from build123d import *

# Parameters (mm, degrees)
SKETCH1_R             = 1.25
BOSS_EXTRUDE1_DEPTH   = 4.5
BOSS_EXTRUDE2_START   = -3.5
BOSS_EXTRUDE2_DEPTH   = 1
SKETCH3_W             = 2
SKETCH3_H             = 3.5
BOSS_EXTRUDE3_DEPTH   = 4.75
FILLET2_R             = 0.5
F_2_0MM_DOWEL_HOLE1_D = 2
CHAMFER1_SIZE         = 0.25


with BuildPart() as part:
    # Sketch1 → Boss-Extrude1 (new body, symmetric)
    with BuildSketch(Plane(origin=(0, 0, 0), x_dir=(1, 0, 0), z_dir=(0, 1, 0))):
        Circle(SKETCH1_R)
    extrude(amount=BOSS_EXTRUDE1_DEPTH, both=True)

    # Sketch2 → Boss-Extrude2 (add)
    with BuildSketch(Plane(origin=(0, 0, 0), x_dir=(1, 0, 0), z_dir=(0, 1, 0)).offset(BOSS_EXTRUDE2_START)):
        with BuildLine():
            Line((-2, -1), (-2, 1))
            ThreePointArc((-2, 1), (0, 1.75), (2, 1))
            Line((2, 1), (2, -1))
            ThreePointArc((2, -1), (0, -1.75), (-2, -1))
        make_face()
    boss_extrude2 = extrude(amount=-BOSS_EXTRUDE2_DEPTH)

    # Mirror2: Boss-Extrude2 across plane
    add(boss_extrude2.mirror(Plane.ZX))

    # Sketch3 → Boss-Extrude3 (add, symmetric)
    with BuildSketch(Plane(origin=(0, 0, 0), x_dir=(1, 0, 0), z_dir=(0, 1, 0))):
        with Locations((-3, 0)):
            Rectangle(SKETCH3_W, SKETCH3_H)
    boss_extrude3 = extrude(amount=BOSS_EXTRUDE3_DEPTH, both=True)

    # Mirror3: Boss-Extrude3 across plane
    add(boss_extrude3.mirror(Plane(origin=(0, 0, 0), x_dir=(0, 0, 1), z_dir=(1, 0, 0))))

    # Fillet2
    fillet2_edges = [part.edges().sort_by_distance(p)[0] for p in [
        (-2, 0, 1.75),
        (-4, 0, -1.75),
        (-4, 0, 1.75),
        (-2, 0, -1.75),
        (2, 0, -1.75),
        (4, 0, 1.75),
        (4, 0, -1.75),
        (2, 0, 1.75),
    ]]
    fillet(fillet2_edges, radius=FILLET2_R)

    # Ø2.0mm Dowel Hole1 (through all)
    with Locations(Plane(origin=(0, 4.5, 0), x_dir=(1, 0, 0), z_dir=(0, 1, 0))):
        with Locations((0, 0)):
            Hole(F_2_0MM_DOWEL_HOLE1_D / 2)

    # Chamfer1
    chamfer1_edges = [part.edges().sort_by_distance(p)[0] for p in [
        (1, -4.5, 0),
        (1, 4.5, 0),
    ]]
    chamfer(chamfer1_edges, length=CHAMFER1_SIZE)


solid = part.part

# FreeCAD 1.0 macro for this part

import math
import FreeCAD as App
import Part
import Sketcher

V = App.Vector


def edges_at(feature, points):
    """Names of the edges that pass closest to the given points."""
    edges = feature.Shape.Edges
    near = lambda p: min(range(len(edges)), key=lambda i: edges[i].distToShape(Part.Vertex(*p))[0])
    return sorted({f"Edge{near(p) + 1}" for p in points})


def add_polygon(sketch, points):
    """Adds a closed chain of lines whose ends are joined by coincident constraints."""
    first, n = sketch.GeometryCount, len(points)
    for a, b in zip(points, points[1:] + points[:1]):
        sketch.addGeometry(Part.LineSegment(App.Vector(*a, 0), App.Vector(*b, 0)), False)
    for i in range(n):
        sketch.addConstraint(Sketcher.Constraint("Coincident", first + i, 2, first + (i + 1) % n, 1))

doc = App.newDocument("Part")
params = doc.addObject("Spreadsheet::Sheet", "Params")
for row, (alias, value) in enumerate([
    ("sketch1_diameter", "2.5 mm"),
    ("pad1_length", "9 mm"),
    ("sketch2_height", "2 mm"),
    ("pad2_length", "1 mm"),
    ("sketch3_width", "2 mm"),
    ("sketch3_height", "3.5 mm"),
    ("pad3_length", "9.5 mm"),
    ("fillet_radius", "0.5 mm"),
    ("sketch4_diameter", "2 mm"),
    ("hole_diameter", "2 mm"),
    ("chamfer_size", "0.25 mm"),
], start=1):
    params.set(f"A{row}", alias)
    params.set(f"B{row}", "=" + value)
    params.setAlias(f"B{row}", alias)

body = doc.addObject("PartDesign::Body", "Body")

sketch1 = body.newObject("Sketcher::SketchObject", "Sketch")
sketch1.AttachmentSupport = (doc.getObject("XZ_Plane"), [""])
sketch1.MapMode = "FlatFace"
sketch1.addGeometry(Part.Circle(V(0, 0, 0), V(0, 0, 1), 1.25), False)
sketch1.addConstraint([
    Sketcher.Constraint("Coincident", 0, 3, -1, 1),
    Sketcher.Constraint("Diameter", 0, 2.5),
])
sketch1.setExpression("Constraints[1]", "Params.sketch1_diameter")
pad1 = body.newObject("PartDesign::Pad", "Pad")
pad1.Profile = sketch1
pad1.setExpression("Length", "Params.pad1_length")
pad1.Midplane = True

sketch2 = body.newObject("Sketcher::SketchObject", "Sketch001")
sketch2.AttachmentSupport = (doc.getObject("XZ_Plane"), [""])
sketch2.MapMode = "FlatFace"
sketch2.AttachmentOffset = App.Placement(V(0, 0, 3.5), App.Rotation())
sketch2.addGeometry([
    Part.LineSegment(V(-2, -1, 0), V(-2, 1, 0)),
    Part.ArcOfCircle(Part.Circle(V(0, -1.291667, 0), V(0, 0, 1), 3.041667), math.radians(48.88791), math.radians(131.11209)),
    Part.LineSegment(V(2, 1, 0), V(2, -1, 0)),
    Part.ArcOfCircle(Part.Circle(V(0, 1.291667, 0), V(0, 0, 1), 3.041667), math.radians(-131.11209), math.radians(-48.88791)),
], False)
sketch2.addConstraint([
    Sketcher.Constraint("Coincident", 0, 2, 1, 2),
    Sketcher.Constraint("Coincident", 1, 1, 2, 1),
    Sketcher.Constraint("Coincident", 2, 2, 3, 2),
    Sketcher.Constraint("Coincident", 3, 1, 0, 1),
    Sketcher.Constraint("Vertical", 0),
    Sketcher.Constraint("Vertical", 2),
    Sketcher.Constraint("Equal", 1, 3),
    Sketcher.Constraint("Symmetric", 1, 3, 3, 3, -1, 1),
    Sketcher.Constraint("Symmetric", 0, 2, 1, 1, -2),
    Sketcher.Constraint("DistanceY", 0, 1, 0, 2, 2.0),
    Sketcher.Constraint("DistanceX", 0, 2, -1, 1, 2.0),
    Sketcher.Constraint("Radius", 1, 3.041667),
])
sketch2.setExpression("Constraints[9]", "Params.sketch2_height")
pad2 = body.newObject("PartDesign::Pad", "Pad001")
pad2.Profile = sketch2
pad2.setExpression("Length", "Params.pad2_length")
doc.recompute()

mirrored = body.newObject("PartDesign::Mirrored", "Mirrored")
mirrored.Originals = [pad2]
mirrored.MirrorPlane = (doc.getObject("XZ_Plane"), [""])
body.Tip = mirrored

sketch3 = body.newObject("Sketcher::SketchObject", "Sketch002")
sketch3.AttachmentSupport = (doc.getObject("XZ_Plane"), [""])
sketch3.MapMode = "FlatFace"
add_polygon(sketch3, [(-4, -1.75), (-4, 1.75), (-2, 1.75), (-2, -1.75)])
sketch3.addConstraint([
    Sketcher.Constraint("Vertical", 0),
    Sketcher.Constraint("Horizontal", 1),
    Sketcher.Constraint("Vertical", 2),
    Sketcher.Constraint("Horizontal", 3),
    Sketcher.Constraint("DistanceX", 1, 1, 1, 2, 2.0),
    Sketcher.Constraint("DistanceY", 0, 1, 0, 2, 3.5),
    Sketcher.Constraint("DistanceX", 0, 2, -1, 1, 4.0),
    Sketcher.Constraint("DistanceY", -1, 1, 0, 2, 1.75),
])
sketch3.setExpression("Constraints[8]", "Params.sketch3_width")
sketch3.setExpression("Constraints[9]", "Params.sketch3_height")
pad3 = body.newObject("PartDesign::Pad", "Pad002")
pad3.Profile = sketch3
pad3.setExpression("Length", "Params.pad3_length")
pad3.Midplane = True
doc.recompute()

mirrored2 = body.newObject("PartDesign::Mirrored", "Mirrored001")
mirrored2.Originals = [pad3]
mirrored2.MirrorPlane = (doc.getObject("YZ_Plane"), [""])
body.Tip = mirrored2
doc.recompute()

fillet = body.newObject("PartDesign::Fillet", "Fillet")
fillet.Base = (mirrored2, edges_at(mirrored2, [
    (-2, 0, 1.75),
    (-4, 0, -1.75),
    (-4, 0, 1.75),
    (-2, 0, -1.75),
    (2, 0, -1.75),
    (4, 0, 1.75),
    (4, 0, -1.75),
    (2, 0, 1.75),
]))
fillet.setExpression("Radius", "Params.fillet_radius")

sketch4 = body.newObject("Sketcher::SketchObject", "Sketch003")
sketch4.AttachmentSupport = (doc.getObject("XZ_Plane"), [""])
sketch4.MapMode = "FlatFace"
sketch4.AttachmentOffset = App.Placement(V(0, 0, -4.5), App.Rotation())
sketch4.addGeometry(Part.Circle(V(0, 0, 0), V(0, 0, 1), 1), False)
sketch4.addConstraint([
    Sketcher.Constraint("Coincident", 0, 3, -1, 1),
    Sketcher.Constraint("Diameter", 0, 2.0),
])
sketch4.setExpression("Constraints[1]", "Params.sketch4_diameter")
doc.recompute()
hole = body.newObject("PartDesign::Hole", "Hole")
hole.Profile = sketch4
hole.ThreadType = "None"
hole.setExpression("Diameter", "Params.hole_diameter")
hole.DepthType = "ThroughAll"
hole.Reversed = True
doc.recompute()

chamfer = body.newObject("PartDesign::Chamfer", "Chamfer")
chamfer.Base = (hole, edges_at(hole, [(1, -4.5, 0), (1, 4.5, 0)]))
chamfer.setExpression("Size", "Params.chamfer_size")

doc.recompute()
